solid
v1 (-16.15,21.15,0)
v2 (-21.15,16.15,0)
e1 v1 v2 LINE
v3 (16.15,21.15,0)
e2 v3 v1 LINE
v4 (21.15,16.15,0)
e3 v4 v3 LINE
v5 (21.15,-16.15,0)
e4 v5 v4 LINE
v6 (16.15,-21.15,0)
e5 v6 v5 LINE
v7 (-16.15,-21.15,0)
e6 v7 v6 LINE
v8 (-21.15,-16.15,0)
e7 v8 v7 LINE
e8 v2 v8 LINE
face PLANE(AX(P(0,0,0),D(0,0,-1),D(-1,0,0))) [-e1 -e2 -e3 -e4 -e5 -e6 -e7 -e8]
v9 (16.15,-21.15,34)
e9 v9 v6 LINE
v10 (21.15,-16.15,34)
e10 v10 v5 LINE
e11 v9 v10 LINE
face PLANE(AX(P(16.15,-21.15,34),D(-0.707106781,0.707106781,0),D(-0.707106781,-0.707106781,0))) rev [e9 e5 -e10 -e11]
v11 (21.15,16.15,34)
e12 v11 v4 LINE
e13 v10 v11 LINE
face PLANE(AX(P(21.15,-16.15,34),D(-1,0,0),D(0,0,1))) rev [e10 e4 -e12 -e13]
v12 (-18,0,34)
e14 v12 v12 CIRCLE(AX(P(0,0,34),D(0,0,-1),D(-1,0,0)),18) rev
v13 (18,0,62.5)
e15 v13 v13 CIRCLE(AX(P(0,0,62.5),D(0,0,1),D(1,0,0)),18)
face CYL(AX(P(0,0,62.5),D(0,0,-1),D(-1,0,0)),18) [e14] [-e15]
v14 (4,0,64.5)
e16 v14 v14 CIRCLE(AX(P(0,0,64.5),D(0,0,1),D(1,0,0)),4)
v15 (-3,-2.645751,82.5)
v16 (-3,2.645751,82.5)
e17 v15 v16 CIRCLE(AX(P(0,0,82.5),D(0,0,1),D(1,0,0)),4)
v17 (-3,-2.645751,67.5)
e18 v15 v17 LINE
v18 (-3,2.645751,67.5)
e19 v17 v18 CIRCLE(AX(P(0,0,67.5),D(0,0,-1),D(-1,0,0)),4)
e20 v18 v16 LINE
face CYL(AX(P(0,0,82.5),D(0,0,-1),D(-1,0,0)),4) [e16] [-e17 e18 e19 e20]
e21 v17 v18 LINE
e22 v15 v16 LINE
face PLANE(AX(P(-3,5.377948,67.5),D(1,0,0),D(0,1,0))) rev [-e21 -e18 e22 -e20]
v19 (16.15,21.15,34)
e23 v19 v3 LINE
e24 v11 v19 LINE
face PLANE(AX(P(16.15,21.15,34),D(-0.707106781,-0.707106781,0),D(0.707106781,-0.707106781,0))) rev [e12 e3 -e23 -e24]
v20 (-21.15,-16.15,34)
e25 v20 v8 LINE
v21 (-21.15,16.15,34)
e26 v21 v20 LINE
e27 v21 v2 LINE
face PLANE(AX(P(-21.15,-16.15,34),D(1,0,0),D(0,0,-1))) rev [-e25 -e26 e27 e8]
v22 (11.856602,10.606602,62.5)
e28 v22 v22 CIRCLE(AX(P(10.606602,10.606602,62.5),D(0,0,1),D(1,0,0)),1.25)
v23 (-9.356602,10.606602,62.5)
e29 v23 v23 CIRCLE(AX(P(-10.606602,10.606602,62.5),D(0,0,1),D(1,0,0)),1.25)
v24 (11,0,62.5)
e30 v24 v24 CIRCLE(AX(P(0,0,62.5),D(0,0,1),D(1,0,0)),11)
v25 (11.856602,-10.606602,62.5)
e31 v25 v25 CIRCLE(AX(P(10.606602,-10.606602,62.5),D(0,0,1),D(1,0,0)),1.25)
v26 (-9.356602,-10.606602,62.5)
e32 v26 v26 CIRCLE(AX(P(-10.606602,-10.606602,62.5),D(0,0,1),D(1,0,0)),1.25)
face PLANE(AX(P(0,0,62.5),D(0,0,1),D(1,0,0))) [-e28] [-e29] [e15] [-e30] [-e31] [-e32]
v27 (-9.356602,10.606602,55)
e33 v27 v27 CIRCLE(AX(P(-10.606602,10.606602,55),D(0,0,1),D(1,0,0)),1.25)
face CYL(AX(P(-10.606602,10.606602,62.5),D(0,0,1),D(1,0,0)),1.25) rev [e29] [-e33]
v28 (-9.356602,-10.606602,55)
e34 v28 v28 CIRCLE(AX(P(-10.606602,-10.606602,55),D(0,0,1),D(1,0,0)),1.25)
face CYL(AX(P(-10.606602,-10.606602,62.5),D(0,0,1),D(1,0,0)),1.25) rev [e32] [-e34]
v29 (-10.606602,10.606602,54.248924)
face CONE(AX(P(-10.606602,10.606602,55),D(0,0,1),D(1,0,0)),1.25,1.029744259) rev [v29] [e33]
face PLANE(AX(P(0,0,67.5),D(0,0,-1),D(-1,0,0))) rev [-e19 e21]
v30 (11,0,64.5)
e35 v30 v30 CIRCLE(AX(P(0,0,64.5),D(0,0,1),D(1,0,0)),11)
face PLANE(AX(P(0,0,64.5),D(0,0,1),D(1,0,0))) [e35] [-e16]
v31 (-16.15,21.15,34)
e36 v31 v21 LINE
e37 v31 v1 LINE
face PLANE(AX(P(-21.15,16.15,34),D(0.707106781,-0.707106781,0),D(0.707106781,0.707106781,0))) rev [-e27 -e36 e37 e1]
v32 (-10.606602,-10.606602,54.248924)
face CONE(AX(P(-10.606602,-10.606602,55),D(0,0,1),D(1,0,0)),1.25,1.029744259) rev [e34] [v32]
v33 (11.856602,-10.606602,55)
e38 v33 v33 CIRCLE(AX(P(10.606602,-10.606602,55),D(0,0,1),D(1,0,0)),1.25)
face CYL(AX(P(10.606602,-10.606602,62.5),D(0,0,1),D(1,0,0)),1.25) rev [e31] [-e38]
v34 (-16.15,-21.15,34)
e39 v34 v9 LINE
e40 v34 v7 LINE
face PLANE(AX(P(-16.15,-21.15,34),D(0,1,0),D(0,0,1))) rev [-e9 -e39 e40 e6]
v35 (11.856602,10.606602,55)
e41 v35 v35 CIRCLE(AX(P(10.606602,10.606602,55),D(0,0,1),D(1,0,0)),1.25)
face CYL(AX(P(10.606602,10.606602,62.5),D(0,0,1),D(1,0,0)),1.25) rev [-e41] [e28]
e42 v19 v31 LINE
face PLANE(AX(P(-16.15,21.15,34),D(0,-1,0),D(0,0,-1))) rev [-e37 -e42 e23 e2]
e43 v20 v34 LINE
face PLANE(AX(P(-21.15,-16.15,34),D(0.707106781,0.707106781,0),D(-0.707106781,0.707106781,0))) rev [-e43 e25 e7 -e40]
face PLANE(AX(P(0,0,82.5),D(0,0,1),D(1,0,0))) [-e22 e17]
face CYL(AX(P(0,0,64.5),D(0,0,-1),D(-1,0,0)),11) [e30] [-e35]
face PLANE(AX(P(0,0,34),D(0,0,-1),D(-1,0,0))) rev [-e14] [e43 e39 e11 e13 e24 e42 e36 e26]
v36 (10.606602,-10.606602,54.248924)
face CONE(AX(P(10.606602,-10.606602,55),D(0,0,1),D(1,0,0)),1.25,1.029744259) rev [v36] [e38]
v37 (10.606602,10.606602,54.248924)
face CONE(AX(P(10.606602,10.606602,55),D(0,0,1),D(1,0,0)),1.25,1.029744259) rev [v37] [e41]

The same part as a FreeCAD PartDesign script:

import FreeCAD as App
import Part
import Sketcher
Q = App.Units.Quantity


def add_polygon(sketch, points):
    """Adds a closed chain of lines whose ends are joined by coincident constraints."""
    first, n = sketch.GeometryCount, len(points)
    for a, b in zip(points, points[1:] + points[:1]):
        sketch.addGeometry(Part.LineSegment(App.Vector(*a, 0), App.Vector(*b, 0)), False)
    for i in range(n):
        sketch.addConstraint(Sketcher.Constraint("Coincident", first + i, 2, first + (i + 1) % n, 1))

doc = App.newDocument("Part")
body = doc.addObject("PartDesign::Body", "Body")

# Sketch on XY plane
sketch1 = body.newObject("Sketcher::SketchObject", "Sketch")
sketch1.AttachmentSupport = (doc.getObject("XY_Plane"), [""])
sketch1.MapMode = "FlatFace"
add_polygon(sketch1, [(-16.15, 21.15), (-21.15, 16.15), (-21.15, -16.15), (-16.15, -21.15), (16.15, -21.15), (21.15, -16.15), (21.15, 16.15), (16.15, 21.15)])  # lines 0-7
sketch1.addConstraint(Sketcher.Constraint("Vertical", 1))
sketch1.addConstraint(Sketcher.Constraint("Horizontal", 3))
sketch1.addConstraint(Sketcher.Constraint("Vertical", 5))
sketch1.addConstraint(Sketcher.Constraint("Horizontal", 7))
sketch1.addConstraint(Sketcher.Constraint("Symmetric", 0, 2, 4, 2, -1, 1))
sketch1.addConstraint(Sketcher.Constraint("Symmetric", 2, 2, 6, 2, -1, 1))
sketch1.addConstraint(Sketcher.Constraint("Perpendicular", 0, 2))
sketch1.addConstraint(Sketcher.Constraint("Perpendicular", 2, 4))
sketch1.addConstraint(Sketcher.Constraint("Perpendicular", 4, 6))
sketch1.addConstraint(Sketcher.Constraint("Horizontal", 1, 2, 4, 2))
sketch1.addConstraint(Sketcher.Constraint("Vertical", 3, 2, 6, 2))
sketch1.addConstraint(Sketcher.Constraint("Equal", 7, 1))
sketch1.addConstraint(Sketcher.Constraint("DistanceX", 3, 1, 3, 2, Q("32.3 mm")))
sketch1.addConstraint(Sketcher.Constraint("DistanceX", 1, 2, 2, 2, Q("5 mm")))
pad1 = body.newObject("PartDesign::Pad", "Pad")
pad1.Profile = sketch1
pad1.Length = 34

# Sketch on XY plane
sketch2 = body.newObject("Sketcher::SketchObject", "Sketch001")
sketch2.AttachmentSupport = (doc.getObject("XY_Plane"), [""])
sketch2.MapMode = "FlatFace"
sketch2.AttachmentOffset = App.Placement(App.Vector(0, 0, 34), App.Rotation())
sketch2.addGeometry(Part.Circle(App.Vector(0, 0, 0), App.Vector(0, 0, 1), 18), False)
sketch2.addConstraint(Sketcher.Constraint("Coincident", 0, 3, -1, 1))
sketch2.addConstraint(Sketcher.Constraint("Diameter", 0, Q("36 mm")))
pad2 = body.newObject("PartDesign::Pad", "Pad001")
pad2.Profile = sketch2
pad2.Length = 28.5

# Sketch on XY plane
sketch3 = body.newObject("Sketcher::SketchObject", "Sketch002")
sketch3.AttachmentSupport = (doc.getObject("XY_Plane"), [""])
sketch3.MapMode = "FlatFace"
sketch3.AttachmentOffset = App.Placement(App.Vector(0, 0, 62.5), App.Rotation())
sketch3.addGeometry(Part.Circle(App.Vector(0, 0, 0), App.Vector(0, 0, 1), 11), False)
sketch3.addConstraint(Sketcher.Constraint("Coincident", 0, 3, -1, 1))
sketch3.addConstraint(Sketcher.Constraint("Diameter", 0, Q("22 mm")))
pad3 = body.newObject("PartDesign::Pad", "Pad002")
pad3.Profile = sketch3
pad3.Length = 2

# Sketch on XY plane
sketch4 = body.newObject("Sketcher::SketchObject", "Sketch003")
sketch4.AttachmentSupport = (doc.getObject("XY_Plane"), [""])
sketch4.MapMode = "FlatFace"
sketch4.AttachmentOffset = App.Placement(App.Vector(0, 0, 64.5), App.Rotation())
sketch4.addGeometry(Part.Circle(App.Vector(0, 0, 0), App.Vector(0, 0, 1), 4), False)
sketch4.addConstraint(Sketcher.Constraint("Coincident", 0, 3, -1, 1))
sketch4.addConstraint(Sketcher.Constraint("Diameter", 0, Q("8 mm")))
pad4 = body.newObject("PartDesign::Pad", "Pad003")
pad4.Profile = sketch4
pad4.Length = 18

# Sketch on XY plane
sketch5 = body.newObject("Sketcher::SketchObject", "Sketch004")
sketch5.AttachmentSupport = (doc.getObject("XY_Plane"), [""])
sketch5.MapMode = "FlatFace"
sketch5.AttachmentOffset = App.Placement(App.Vector(0, 0, 82.5), App.Rotation())
add_polygon(sketch5, [(-11.094286, 5.377948), (-11.094286, -8.072851), (-3, -8.072851), (-3, 5.377948)])  # lines 0-3
sketch5.addConstraint(Sketcher.Constraint("Vertical", 0))
sketch5.addConstraint(Sketcher.Constraint("Horizontal", 1))
sketch5.addConstraint(Sketcher.Constraint("Vertical", 2))
sketch5.addConstraint(Sketcher.Constraint("Horizontal", 3))
sketch5.addConstraint(Sketcher.Constraint("DistanceX", 1, 2, -1, 1, Q("3 mm")))
sketch5.addConstraint(Sketcher.Constraint("DistanceY", 0, 2, 0, 1, Q("13.4508 mm")))
sketch5.addConstraint(Sketcher.Constraint("DistanceX", 1, 1, 1, 2, Q("8.094286 mm")))
sketch5.addConstraint(Sketcher.Constraint("DistanceY", 0, 2, -1, 1, Q("8.072851 mm")))
pocket1 = body.newObject("PartDesign::Pocket", "Pocket")
pocket1.Profile = sketch5
pocket1.Length = 15

# Sketch on XY plane
sketch6 = body.newObject("Sketcher::SketchObject", "Sketch005")
sketch6.AttachmentSupport = (doc.getObject("XY_Plane"), [""])
sketch6.MapMode = "FlatFace"
sketch6.AttachmentOffset = App.Placement(App.Vector(0, 0, 62.5), App.Rotation())
sketch6.addGeometry(Part.Circle(App.Vector(-10.606602, 10.606602, 0), App.Vector(0, 0, 1), 1), False)
sketch6.addGeometry(Part.Circle(App.Vector(10.606602, 10.606602, 0), App.Vector(0, 0, 1), 1), False)
sketch6.addGeometry(Part.Circle(App.Vector(-10.606602, -10.606602, 0), App.Vector(0, 0, 1), 1), False)
sketch6.addGeometry(Part.Circle(App.Vector(10.606602, -10.606602, 0), App.Vector(0, 0, 1), 1), False)
sketch6.addConstraint(Sketcher.Constraint("Equal", 0, 1))
sketch6.addConstraint(Sketcher.Constraint("Equal", 1, 2))
sketch6.addConstraint(Sketcher.Constraint("Equal", 2, 3))
sketch6.addConstraint(Sketcher.Constraint("Symmetric", 1, 3, 2, 3, -1, 1))
sketch6.addConstraint(Sketcher.Constraint("Symmetric", 0, 3, 3, 3, -1, 1))
sketch6.addConstraint(Sketcher.Constraint("Symmetric", 0, 3, 1, 3, -2))
sketch6.addConstraint(Sketcher.Constraint("Diameter", 0, Q("2 mm")))
sketch6.addConstraint(Sketcher.Constraint("DistanceX", 0, 3, -1, 1, Q("10.606602 mm")))
sketch6.addConstraint(Sketcher.Constraint("DistanceY", -1, 1, 0, 3, Q("10.606602 mm")))
pocket2 = body.newObject("PartDesign::Pocket", "Pocket001")
pocket2.Profile = sketch6
pocket2.Length = 5

# Sketch on XY plane
sketch7 = body.newObject("Sketcher::SketchObject", "Sketch006")
sketch7.AttachmentSupport = (doc.getObject("XY_Plane"), [""])
sketch7.MapMode = "FlatFace"
sketch7.AttachmentOffset = App.Placement(App.Vector(0, 0, 62.5), App.Rotation())
sketch7.addGeometry(Part.Circle(App.Vector(-10.606602, 10.606602, 0), App.Vector(0, 0, 1), 1.25), False)
sketch7.addGeometry(Part.Circle(App.Vector(10.606602, 10.606602, 0), App.Vector(0, 0, 1), 1.25), False)
sketch7.addGeometry(Part.Circle(App.Vector(-10.606602, -10.606602, 0), App.Vector(0, 0, 1), 1.25), False)
sketch7.addGeometry(Part.Circle(App.Vector(10.606602, -10.606602, 0), App.Vector(0, 0, 1), 1.25), False)
sketch7.addConstraint(Sketcher.Constraint("Equal", 0, 1))
sketch7.addConstraint(Sketcher.Constraint("Equal", 1, 2))
sketch7.addConstraint(Sketcher.Constraint("Equal", 2, 3))
sketch7.addConstraint(Sketcher.Constraint("Symmetric", 1, 3, 2, 3, -1, 1))
sketch7.addConstraint(Sketcher.Constraint("Symmetric", 0, 3, 3, 3, -1, 1))
sketch7.addConstraint(Sketcher.Constraint("Symmetric", 0, 3, 1, 3, -2))
sketch7.addConstraint(Sketcher.Constraint("Diameter", 0, Q("2.5 mm")))
sketch7.addConstraint(Sketcher.Constraint("DistanceX", 0, 3, -1, 1, Q("10.606602 mm")))
sketch7.addConstraint(Sketcher.Constraint("DistanceY", -1, 1, 0, 3, Q("10.606602 mm")))
doc.recompute()
hole = body.newObject("PartDesign::Hole", "Hole")
hole.Profile = sketch7
hole.ThreadType = "None"
hole.Diameter = 2.5
hole.DepthType = "Dimension"
hole.Depth = 7.5
hole.DrillPoint = "Angled"
hole.DrillPointAngle = 118

doc.recompute()
